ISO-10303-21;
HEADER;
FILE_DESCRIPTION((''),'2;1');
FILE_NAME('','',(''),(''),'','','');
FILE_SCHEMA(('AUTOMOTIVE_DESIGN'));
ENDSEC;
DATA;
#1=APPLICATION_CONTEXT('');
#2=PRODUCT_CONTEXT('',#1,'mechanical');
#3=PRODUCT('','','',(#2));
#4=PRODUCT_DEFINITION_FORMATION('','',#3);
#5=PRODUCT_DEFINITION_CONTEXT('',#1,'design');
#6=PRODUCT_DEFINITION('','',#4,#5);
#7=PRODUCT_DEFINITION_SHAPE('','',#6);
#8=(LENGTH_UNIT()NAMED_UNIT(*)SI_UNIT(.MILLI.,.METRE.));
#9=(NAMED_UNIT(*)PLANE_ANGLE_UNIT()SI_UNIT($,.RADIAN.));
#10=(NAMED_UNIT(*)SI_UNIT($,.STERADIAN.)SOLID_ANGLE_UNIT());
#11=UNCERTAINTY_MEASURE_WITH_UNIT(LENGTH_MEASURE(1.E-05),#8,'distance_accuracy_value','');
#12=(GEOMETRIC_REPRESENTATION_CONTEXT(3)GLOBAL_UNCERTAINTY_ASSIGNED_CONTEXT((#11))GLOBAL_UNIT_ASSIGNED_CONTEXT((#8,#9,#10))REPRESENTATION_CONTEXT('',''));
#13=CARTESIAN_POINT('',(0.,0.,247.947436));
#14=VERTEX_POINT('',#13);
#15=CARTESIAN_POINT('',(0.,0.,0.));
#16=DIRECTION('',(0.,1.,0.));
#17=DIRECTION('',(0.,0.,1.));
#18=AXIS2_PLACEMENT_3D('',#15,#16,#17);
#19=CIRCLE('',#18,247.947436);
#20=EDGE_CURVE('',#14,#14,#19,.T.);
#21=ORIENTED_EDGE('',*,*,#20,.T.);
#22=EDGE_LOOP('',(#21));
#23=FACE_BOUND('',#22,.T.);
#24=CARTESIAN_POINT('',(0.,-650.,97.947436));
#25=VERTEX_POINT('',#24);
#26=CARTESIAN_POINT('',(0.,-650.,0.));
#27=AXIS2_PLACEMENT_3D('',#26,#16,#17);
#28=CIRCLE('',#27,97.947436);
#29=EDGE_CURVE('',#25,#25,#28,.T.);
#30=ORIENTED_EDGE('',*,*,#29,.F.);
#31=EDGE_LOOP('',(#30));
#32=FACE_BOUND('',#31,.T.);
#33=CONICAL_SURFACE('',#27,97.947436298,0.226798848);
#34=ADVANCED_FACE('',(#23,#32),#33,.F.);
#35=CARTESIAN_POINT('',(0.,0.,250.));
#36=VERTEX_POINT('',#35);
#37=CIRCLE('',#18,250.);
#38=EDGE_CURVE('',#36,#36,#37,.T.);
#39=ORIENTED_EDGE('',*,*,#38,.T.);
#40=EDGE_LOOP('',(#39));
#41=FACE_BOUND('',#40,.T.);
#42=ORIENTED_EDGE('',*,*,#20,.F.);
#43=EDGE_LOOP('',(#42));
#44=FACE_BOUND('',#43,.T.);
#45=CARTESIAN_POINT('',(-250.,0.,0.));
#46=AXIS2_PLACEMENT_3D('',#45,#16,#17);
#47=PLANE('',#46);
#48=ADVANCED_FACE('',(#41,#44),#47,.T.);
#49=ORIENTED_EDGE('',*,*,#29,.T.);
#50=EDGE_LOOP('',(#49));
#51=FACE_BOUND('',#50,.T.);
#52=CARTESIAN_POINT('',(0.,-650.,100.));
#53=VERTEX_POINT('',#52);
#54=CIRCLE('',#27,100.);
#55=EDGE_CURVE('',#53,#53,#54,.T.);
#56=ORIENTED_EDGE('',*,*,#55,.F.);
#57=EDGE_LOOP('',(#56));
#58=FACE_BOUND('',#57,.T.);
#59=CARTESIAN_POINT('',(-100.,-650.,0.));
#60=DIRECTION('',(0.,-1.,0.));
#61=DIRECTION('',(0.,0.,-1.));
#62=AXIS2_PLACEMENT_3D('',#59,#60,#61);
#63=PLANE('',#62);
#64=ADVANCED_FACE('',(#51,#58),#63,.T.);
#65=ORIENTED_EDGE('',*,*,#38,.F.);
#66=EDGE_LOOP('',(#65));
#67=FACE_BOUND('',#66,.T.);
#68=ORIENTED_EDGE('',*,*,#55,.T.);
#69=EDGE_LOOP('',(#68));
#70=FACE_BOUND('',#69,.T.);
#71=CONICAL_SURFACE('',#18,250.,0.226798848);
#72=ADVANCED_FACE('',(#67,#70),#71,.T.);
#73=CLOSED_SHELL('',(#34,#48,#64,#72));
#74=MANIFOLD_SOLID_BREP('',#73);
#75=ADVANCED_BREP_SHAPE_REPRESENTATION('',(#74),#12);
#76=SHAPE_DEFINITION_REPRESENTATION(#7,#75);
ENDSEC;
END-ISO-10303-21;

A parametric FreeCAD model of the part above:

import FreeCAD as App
import Part
import Sketcher

doc = App.newDocument("Part")
body = doc.addObject("PartDesign::Body", "Body")

# Sketch on XY plane
sketch1 = doc.addObject("Sketcher::SketchObject", "Sketch")
body.addObject(sketch1)
sketch1.AttachmentSupport = (doc.XY_Plane, [""])
sketch1.MapMode = "FlatFace"
sketch1.addGeometry(Part.LineSegment(App.Vector(-250, 0, 0), App.Vector(-100, -650, 0)), False)
sketch1.addGeometry(Part.LineSegment(App.Vector(-100, -650, 0), App.Vector(-97.9, -650, 0)), False)
sketch1.addGeometry(Part.LineSegment(App.Vector(-97.9, -650, 0), App.Vector(-247.9, 0, 0)), False)
sketch1.addGeometry(Part.LineSegment(App.Vector(-247.9, 0, 0), App.Vector(-250, 0, 0)), False)
sketch1.addConstraint(Sketcher.Constraint("Coincident", 0, 2, 1, 1))
sketch1.addConstraint(Sketcher.Constraint("Coincident", 1, 2, 2, 1))
sketch1.addConstraint(Sketcher.Constraint("Coincident", 2, 2, 3, 1))
sketch1.addConstraint(Sketcher.Constraint("Coincident", 3, 2, 0, 1))
sketch1.addConstraint(Sketcher.Constraint("Horizontal", 1))
sketch1.addConstraint(Sketcher.Constraint("Horizontal", 3))
sketch1.addConstraint(Sketcher.Constraint("PointOnObject", 2, 2, -1))
sketch1.addConstraint(Sketcher.Constraint("Parallel", 0, 2))
sketch1.addConstraint(Sketcher.Constraint("DistanceX", 0, 2, -1, 1, 100.0))
sketch1.addConstraint(Sketcher.Constraint("DistanceY", 0, 2, -1, 1, 650.0))
sketch1.addConstraint(Sketcher.Constraint("DistanceX", 3, 2, -1, 1, 250.0))
sketch1.addConstraint(Sketcher.Constraint("DistanceX", 1, 1, 1, 2, 2.052564))
revolution = doc.addObject("PartDesign::Revolution", "Revolution")
body.addObject(revolution)
revolution.Profile = sketch1
revolution.ReferenceAxis = (sketch1, ["V_Axis"])
revolution.Angle = 360

doc.recompute()
